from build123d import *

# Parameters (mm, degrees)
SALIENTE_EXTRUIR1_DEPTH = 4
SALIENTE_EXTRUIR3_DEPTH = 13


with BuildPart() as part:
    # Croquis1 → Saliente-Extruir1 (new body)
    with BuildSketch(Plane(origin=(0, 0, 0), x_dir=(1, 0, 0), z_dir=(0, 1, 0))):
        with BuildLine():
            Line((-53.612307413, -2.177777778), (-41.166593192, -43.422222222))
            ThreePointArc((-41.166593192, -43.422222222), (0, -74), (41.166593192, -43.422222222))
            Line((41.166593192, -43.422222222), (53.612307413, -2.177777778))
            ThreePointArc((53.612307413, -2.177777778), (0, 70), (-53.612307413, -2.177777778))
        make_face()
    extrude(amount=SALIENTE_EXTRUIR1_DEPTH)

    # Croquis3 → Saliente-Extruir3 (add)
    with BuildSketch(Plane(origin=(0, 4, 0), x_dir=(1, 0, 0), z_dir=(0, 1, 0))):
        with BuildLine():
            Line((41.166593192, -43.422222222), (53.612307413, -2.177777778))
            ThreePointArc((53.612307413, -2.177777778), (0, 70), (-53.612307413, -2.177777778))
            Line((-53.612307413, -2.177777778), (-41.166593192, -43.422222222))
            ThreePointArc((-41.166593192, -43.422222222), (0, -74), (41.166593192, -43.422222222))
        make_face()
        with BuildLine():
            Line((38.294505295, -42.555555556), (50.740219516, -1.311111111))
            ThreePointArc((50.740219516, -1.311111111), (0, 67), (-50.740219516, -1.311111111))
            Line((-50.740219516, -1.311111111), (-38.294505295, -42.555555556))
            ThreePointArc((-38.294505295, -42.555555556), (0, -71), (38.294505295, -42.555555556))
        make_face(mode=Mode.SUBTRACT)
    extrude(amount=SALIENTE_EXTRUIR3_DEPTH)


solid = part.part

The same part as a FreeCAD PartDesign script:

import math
import FreeCAD as App
import Part
import Sketcher

V = App.Vector

doc = App.newDocument("Part")
body = doc.addObject("PartDesign::Body", "Body")

# Sketch on XZ plane
sketch1 = body.newObject("Sketcher::SketchObject", "Sketch")
sketch1.AttachmentSupport = (doc.getObject("XZ_Plane"), [""])
sketch1.MapMode = "FlatFace"
sketch1.addGeometry([
    Part.LineSegment(V(-53.612307, 2.177778, 0), V(-41.166593, 43.422222, 0)),
    Part.ArcOfCircle(Part.Circle(V(0, 31, 0), V(0, 0, 1), 43), math.radians(16.791447), math.radians(163.208553)),
    Part.LineSegment(V(41.166593, 43.422222, 0), V(53.612307, 2.177778, 0)),
    Part.ArcOfCircle(Part.Circle(V(0, -14, 0), V(0, 0, 1), 56), math.radians(163.208553), math.radians(376.791447)),
], False)
sketch1.addConstraint([
    Sketcher.Constraint("Tangent", 0, 2, 1, 2),
    Sketcher.Constraint("Tangent", 1, 1, 2, 1),
    Sketcher.Constraint("Tangent", 2, 2, 3, 2),
    Sketcher.Constraint("Tangent", 3, 1, 0, 1),
    Sketcher.Constraint("Symmetric", 0, 2, 1, 1, -2),
    Sketcher.Constraint("Radius", 1, 43.0),
    Sketcher.Constraint("Radius", 3, 56.0),
    Sketcher.Constraint("DistanceY", -1, 1, 1, 3, 31.0),
    Sketcher.Constraint("DistanceY", 3, 3, -1, 1, 14.0),
])
pad1 = body.newObject("PartDesign::Pad", "Pad")
pad1.Profile = sketch1
pad1.Length = 4
pad1.Reversed = True

# Sketch on XZ plane
sketch2 = body.newObject("Sketcher::SketchObject", "Sketch001")
sketch2.AttachmentSupport = (doc.getObject("XZ_Plane"), [""])
sketch2.MapMode = "FlatFace"
sketch2.AttachmentOffset = App.Placement(V(0, 0, -4), App.Rotation())
sketch2.addGeometry([
    Part.LineSegment(V(41.166593, 43.422222, 0), V(53.612307, 2.177778, 0)),  # 0
    Part.ArcOfCircle(Part.Circle(V(0, -14, 0), V(0, 0, 1), 56), math.radians(163.208553), math.radians(376.791447)),  # 1
    Part.LineSegment(V(-53.612307, 2.177778, 0), V(-41.166593, 43.422222, 0)),  # 2
    Part.ArcOfCircle(Part.Circle(V(0, 31, 0), V(0, 0, 1), 43), math.radians(16.791447), math.radians(163.208553)),  # 3
    Part.LineSegment(V(50.74022, 1.311111, 0), V(38.294505, 42.555556, 0)),  # 4
    Part.ArcOfCircle(Part.Circle(V(0, 31, 0), V(0, 0, 1), 40), math.radians(16.791447), math.radians(163.208553)),  # 5
    Part.LineSegment(V(-38.294505, 42.555556, 0), V(-50.74022, 1.311111, 0)),  # 6
    Part.ArcOfCircle(Part.Circle(V(0, -14, 0), V(0, 0, 1), 53), math.radians(163.208553), math.radians(376.791447)),  # 7
], False)
sketch2.addConstraint([
    Sketcher.Constraint("Tangent", 0, 2, 1, 2),
    Sketcher.Constraint("Tangent", 1, 1, 2, 1),
    Sketcher.Constraint("Tangent", 2, 2, 3, 2),
    Sketcher.Constraint("Tangent", 3, 1, 0, 1),
    Sketcher.Constraint("Tangent", 4, 2, 5, 1),
    Sketcher.Constraint("Tangent", 5, 2, 6, 1),
    Sketcher.Constraint("Tangent", 6, 2, 7, 1),
    Sketcher.Constraint("Tangent", 7, 2, 4, 1),
    Sketcher.Constraint("Coincident", 5, 3, 3, 3),
    Sketcher.Constraint("Coincident", 7, 3, 1, 3),
    Sketcher.Constraint("Symmetric", 0, 2, 1, 1, -2),
    Sketcher.Constraint("Parallel", 0, 4),
    Sketcher.Constraint("Radius", 1, 56.0),
    Sketcher.Constraint("Radius", 3, 43.0),
    Sketcher.Constraint("Radius", 5, 40.0),
    Sketcher.Constraint("DistanceY", 1, 3, -1, 1, 14.0),
    Sketcher.Constraint("DistanceY", -1, 1, 3, 3, 31.0),
])
pad2 = body.newObject("PartDesign::Pad", "Pad001")
pad2.Profile = sketch2
pad2.Length = 13
pad2.Reversed = True

doc.recompute()
